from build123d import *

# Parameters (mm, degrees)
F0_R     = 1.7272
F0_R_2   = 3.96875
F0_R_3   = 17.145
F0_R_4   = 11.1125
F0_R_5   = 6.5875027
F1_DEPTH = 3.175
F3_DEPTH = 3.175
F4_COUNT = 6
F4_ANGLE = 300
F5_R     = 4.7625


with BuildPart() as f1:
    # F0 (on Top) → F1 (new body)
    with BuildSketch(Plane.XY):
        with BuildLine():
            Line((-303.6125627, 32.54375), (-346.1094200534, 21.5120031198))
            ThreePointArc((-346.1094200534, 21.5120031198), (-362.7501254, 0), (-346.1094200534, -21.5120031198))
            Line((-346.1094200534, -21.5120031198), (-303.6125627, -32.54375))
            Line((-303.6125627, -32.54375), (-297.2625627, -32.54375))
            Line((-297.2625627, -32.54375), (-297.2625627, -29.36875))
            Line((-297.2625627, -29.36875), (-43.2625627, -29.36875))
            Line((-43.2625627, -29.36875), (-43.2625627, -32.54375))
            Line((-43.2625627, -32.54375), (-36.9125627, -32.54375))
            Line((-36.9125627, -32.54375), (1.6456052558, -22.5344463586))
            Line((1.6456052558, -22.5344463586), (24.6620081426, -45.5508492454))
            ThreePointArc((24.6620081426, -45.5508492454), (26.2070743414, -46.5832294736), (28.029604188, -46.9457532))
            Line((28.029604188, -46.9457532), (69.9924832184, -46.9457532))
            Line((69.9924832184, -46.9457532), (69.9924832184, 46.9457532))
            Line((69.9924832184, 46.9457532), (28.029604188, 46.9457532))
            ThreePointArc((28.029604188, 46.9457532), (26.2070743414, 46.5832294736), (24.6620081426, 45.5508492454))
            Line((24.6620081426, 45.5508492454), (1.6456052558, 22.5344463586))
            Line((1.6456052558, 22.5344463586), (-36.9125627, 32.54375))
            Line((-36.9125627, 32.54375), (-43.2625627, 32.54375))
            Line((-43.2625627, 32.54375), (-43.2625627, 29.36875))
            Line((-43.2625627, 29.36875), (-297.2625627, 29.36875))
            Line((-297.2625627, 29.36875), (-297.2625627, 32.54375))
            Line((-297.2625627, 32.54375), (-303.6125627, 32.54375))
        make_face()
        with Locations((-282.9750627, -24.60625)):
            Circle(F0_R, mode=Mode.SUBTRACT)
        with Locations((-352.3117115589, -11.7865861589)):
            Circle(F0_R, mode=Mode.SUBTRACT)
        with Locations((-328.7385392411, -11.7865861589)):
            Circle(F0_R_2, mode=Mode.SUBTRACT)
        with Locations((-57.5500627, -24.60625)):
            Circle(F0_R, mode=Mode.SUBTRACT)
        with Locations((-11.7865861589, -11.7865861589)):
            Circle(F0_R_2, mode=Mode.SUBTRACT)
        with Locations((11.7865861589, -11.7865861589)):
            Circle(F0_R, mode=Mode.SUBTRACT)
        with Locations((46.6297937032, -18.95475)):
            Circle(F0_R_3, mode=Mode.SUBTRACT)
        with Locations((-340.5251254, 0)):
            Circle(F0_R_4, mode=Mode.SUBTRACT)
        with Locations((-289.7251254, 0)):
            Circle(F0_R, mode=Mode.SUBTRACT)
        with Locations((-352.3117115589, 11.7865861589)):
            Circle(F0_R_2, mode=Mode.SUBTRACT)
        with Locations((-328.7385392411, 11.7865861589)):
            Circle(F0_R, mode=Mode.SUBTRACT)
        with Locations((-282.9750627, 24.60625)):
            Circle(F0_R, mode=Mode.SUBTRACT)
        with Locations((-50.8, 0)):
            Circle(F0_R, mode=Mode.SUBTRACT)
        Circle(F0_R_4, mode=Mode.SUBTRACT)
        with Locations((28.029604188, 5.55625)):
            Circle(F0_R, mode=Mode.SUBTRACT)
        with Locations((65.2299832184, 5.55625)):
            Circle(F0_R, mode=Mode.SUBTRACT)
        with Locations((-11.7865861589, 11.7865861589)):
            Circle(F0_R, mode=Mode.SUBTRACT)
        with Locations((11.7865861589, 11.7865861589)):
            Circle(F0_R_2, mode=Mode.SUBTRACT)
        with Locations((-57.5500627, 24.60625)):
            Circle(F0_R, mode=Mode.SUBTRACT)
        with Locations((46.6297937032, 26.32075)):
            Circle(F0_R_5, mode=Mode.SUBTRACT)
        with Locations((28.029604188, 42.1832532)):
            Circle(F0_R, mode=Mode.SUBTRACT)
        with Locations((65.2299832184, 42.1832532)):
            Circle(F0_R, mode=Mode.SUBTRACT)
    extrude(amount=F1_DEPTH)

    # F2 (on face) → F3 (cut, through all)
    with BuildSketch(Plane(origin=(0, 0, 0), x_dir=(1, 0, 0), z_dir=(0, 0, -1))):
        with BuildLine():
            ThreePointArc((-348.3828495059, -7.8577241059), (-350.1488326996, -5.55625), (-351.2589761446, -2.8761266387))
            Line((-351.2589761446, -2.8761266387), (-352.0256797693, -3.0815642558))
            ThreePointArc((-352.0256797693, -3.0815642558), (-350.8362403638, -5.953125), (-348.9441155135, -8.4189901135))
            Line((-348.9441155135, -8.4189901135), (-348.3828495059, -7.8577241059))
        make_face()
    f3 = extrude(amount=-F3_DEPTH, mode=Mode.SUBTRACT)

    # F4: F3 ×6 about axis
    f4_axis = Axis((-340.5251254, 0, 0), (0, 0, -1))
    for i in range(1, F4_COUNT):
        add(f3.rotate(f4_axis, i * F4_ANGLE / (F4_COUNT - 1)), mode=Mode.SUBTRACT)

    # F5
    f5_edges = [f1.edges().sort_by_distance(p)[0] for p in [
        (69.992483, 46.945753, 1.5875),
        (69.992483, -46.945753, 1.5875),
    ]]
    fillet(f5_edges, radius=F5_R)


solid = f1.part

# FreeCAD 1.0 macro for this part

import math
import FreeCAD as App
import Part
import Sketcher
Q = App.Units.Quantity


def edges_at(feature, points):
    """Names of the edges that pass closest to the given points."""
    edges = feature.Shape.Edges
    near = lambda p: min(range(len(edges)), key=lambda i: edges[i].distToShape(Part.Vertex(*p))[0])
    return sorted({f"Edge{near(p) + 1}" for p in points})

doc = App.newDocument("Part")
body = doc.addObject("PartDesign::Body", "Body")

# Sketch on XY plane
sketch1 = doc.addObject("Sketcher::SketchObject", "Sketch")
body.addObject(sketch1)
sketch1.AttachmentSupport = (doc.XY_Plane, [""])
sketch1.MapMode = "FlatFace"
sketch1.addGeometry([
    Part.LineSegment(App.Vector(-303.6, 32.5, 0), App.Vector(-346.1, 21.5, 0)),  # 0
    Part.ArcOfCircle(Part.Circle(App.Vector(-340.5, 0, 0), App.Vector(0, 0, 1), 22.2), math.radians(105), math.radians(255)),  # 1
    Part.LineSegment(App.Vector(-346.1, -21.5, 0), App.Vector(-303.6, -32.5, 0)),  # 2
    Part.LineSegment(App.Vector(-303.6, -32.5, 0), App.Vector(-297.3, -32.5, 0)),  # 3
    Part.LineSegment(App.Vector(-297.3, -32.5, 0), App.Vector(-297.3, -29.4, 0)),  # 4
    Part.LineSegment(App.Vector(-297.3, -29.4, 0), App.Vector(-43.3, -29.4, 0)),  # 5
    Part.LineSegment(App.Vector(-43.3, -29.4, 0), App.Vector(-43.3, -32.5, 0)),  # 6
    Part.LineSegment(App.Vector(-43.3, -32.5, 0), App.Vector(-36.9, -32.5, 0)),  # 7
    Part.LineSegment(App.Vector(-36.9, -32.5, 0), App.Vector(1.6, -22.5, 0)),  # 8
    Part.LineSegment(App.Vector(1.6, -22.5, 0), App.Vector(24.7, -45.6, 0)),  # 9
    Part.ArcOfCircle(Part.Circle(App.Vector(28, -42.2, 0), App.Vector(0, 0, 1), 4.8), math.radians(-135), math.radians(-90)),  # 10
    Part.LineSegment(App.Vector(28, -46.9, 0), App.Vector(70, -46.9, 0)),  # 11
    Part.LineSegment(App.Vector(70, -46.9, 0), App.Vector(70, 46.9, 0)),  # 12
    Part.LineSegment(App.Vector(70, 46.9, 0), App.Vector(28, 46.9, 0)),  # 13
    Part.ArcOfCircle(Part.Circle(App.Vector(28, 42.2, 0), App.Vector(0, 0, 1), 4.8), math.radians(90), math.radians(135)),  # 14
    Part.LineSegment(App.Vector(24.7, 45.6, 0), App.Vector(1.6, 22.5, 0)),  # 15
    Part.LineSegment(App.Vector(1.6, 22.5, 0), App.Vector(-36.9, 32.5, 0)),  # 16
    Part.LineSegment(App.Vector(-36.9, 32.5, 0), App.Vector(-43.3, 32.5, 0)),  # 17
    Part.LineSegment(App.Vector(-43.3, 32.5, 0), App.Vector(-43.3, 29.4, 0)),  # 18
    Part.LineSegment(App.Vector(-43.3, 29.4, 0), App.Vector(-297.3, 29.4, 0)),  # 19
    Part.LineSegment(App.Vector(-297.3, 29.4, 0), App.Vector(-297.3, 32.5, 0)),  # 20
    Part.LineSegment(App.Vector(-297.3, 32.5, 0), App.Vector(-303.6, 32.5, 0)),  # 21
    Part.Circle(App.Vector(-283, -24.6, 0), App.Vector(0, 0, 1), 1.7),  # 22
    Part.Circle(App.Vector(-352.3, -11.8, 0), App.Vector(0, 0, 1), 1.7),  # 23
    Part.Circle(App.Vector(-328.7, -11.8, 0), App.Vector(0, 0, 1), 4),  # 24
    Part.Circle(App.Vector(-340.5, 0, 0), App.Vector(0, 0, 1), 11.1),  # 25
    Part.Circle(App.Vector(-289.7, 0, 0), App.Vector(0, 0, 1), 1.7),  # 26
    Part.Circle(App.Vector(-57.6, -24.6, 0), App.Vector(0, 0, 1), 1.7),  # 27
    Part.Circle(App.Vector(46.6, -19, 0), App.Vector(0, 0, 1), 17.1),  # 28
    Part.Circle(App.Vector(-50.8, 0, 0), App.Vector(0, 0, 1), 1.7),  # 29
    Part.Circle(App.Vector(-11.8, -11.8, 0), App.Vector(0, 0, 1), 4),  # 30
    Part.Circle(App.Vector(11.8, -11.8, 0), App.Vector(0, 0, 1), 1.7),  # 31
    Part.Circle(App.Vector(0, 0, 0), App.Vector(0, 0, 1), 11.1),  # 32
    Part.Circle(App.Vector(-352.3, 11.8, 0), App.Vector(0, 0, 1), 4),  # 33
    Part.Circle(App.Vector(-328.7, 11.8, 0), App.Vector(0, 0, 1), 1.7),  # 34
    Part.Circle(App.Vector(-283, 24.6, 0), App.Vector(0, 0, 1), 1.7),  # 35
    Part.Circle(App.Vector(-11.8, 11.8, 0), App.Vector(0, 0, 1), 1.7),  # 36
    Part.Circle(App.Vector(11.8, 11.8, 0), App.Vector(0, 0, 1), 4),  # 37
    Part.Circle(App.Vector(28, 5.6, 0), App.Vector(0, 0, 1), 1.7),  # 38
    Part.Circle(App.Vector(65.2, 5.6, 0), App.Vector(0, 0, 1), 1.7),  # 39
    Part.Circle(App.Vector(-57.6, 24.6, 0), App.Vector(0, 0, 1), 1.7),  # 40
    Part.Circle(App.Vector(46.6, 26.3, 0), App.Vector(0, 0, 1), 6.6),  # 41
    Part.Circle(App.Vector(28, 42.2, 0), App.Vector(0, 0, 1), 1.7),  # 42
    Part.Circle(App.Vector(65.2, 42.2, 0), App.Vector(0, 0, 1), 1.7),  # 43
], False)
sketch1.addConstraint([
    Sketcher.Constraint("Tangent", 0, 2, 1, 1),
    Sketcher.Constraint("Tangent", 1, 2, 2, 1),
    Sketcher.Constraint("Coincident", 2, 2, 3, 1),
    Sketcher.Constraint("Coincident", 3, 2, 4, 1),
    Sketcher.Constraint("Coincident", 4, 2, 5, 1),
    Sketcher.Constraint("Coincident", 5, 2, 6, 1),
    Sketcher.Constraint("Coincident", 6, 2, 7, 1),
    Sketcher.Constraint("Coincident", 7, 2, 8, 1),
    Sketcher.Constraint("Coincident", 8, 2, 9, 1),
    Sketcher.Constraint("Tangent", 9, 2, 10, 1),
    Sketcher.Constraint("Tangent", 10, 2, 11, 1),
    Sketcher.Constraint("Coincident", 11, 2, 12, 1),
    Sketcher.Constraint("Coincident", 12, 2, 13, 1),
    Sketcher.Constraint("Tangent", 13, 2, 14, 1),
    Sketcher.Constraint("Tangent", 14, 2, 15, 1),
    Sketcher.Constraint("Coincident", 15, 2, 16, 1),
    Sketcher.Constraint("Coincident", 16, 2, 17, 1),
    Sketcher.Constraint("Coincident", 17, 2, 18, 1),
    Sketcher.Constraint("Coincident", 18, 2, 19, 1),
    Sketcher.Constraint("Coincident", 19, 2, 20, 1),
    Sketcher.Constraint("Coincident", 20, 2, 21, 1),
    Sketcher.Constraint("Coincident", 21, 2, 0, 1),
    Sketcher.Constraint("Horizontal", 3),
    Sketcher.Constraint("Vertical", 4),
    Sketcher.Constraint("Horizontal", 5),
    Sketcher.Constraint("Vertical", 6),
    Sketcher.Constraint("Horizontal", 7),
    Sketcher.Constraint("Horizontal", 11),
    Sketcher.Constraint("Vertical", 12),
    Sketcher.Constraint("Horizontal", 13),
    Sketcher.Constraint("Horizontal", 17),
    Sketcher.Constraint("Vertical", 18),
    Sketcher.Constraint("Horizontal", 19),
    Sketcher.Constraint("Vertical", 20),
    Sketcher.Constraint("Horizontal", 21),
    Sketcher.Constraint("Coincident", 32, 3, -1, 1),
    Sketcher.Constraint("Coincident", 25, 3, 1, 3),
    Sketcher.Constraint("Coincident", 42, 3, 14, 3),
    Sketcher.Constraint("Equal", 10, 14),
    Sketcher.Constraint("Equal", 22, 23),
    Sketcher.Constraint("Equal", 23, 26),
    Sketcher.Constraint("Equal", 26, 27),
    Sketcher.Constraint("Equal", 27, 29),
    Sketcher.Constraint("Equal", 24, 30),
    Sketcher.Constraint("Equal", 29, 31),
    Sketcher.Constraint("Equal", 25, 32),
    Sketcher.Constraint("Equal", 30, 33),
    Sketcher.Constraint("Equal", 31, 34),
    Sketcher.Constraint("Equal", 34, 35),
    Sketcher.Constraint("Equal", 35, 36),
    Sketcher.Constraint("Equal", 33, 37),
    Sketcher.Constraint("Equal", 36, 38),
    Sketcher.Constraint("Equal", 38, 39),
    Sketcher.Constraint("Equal", 39, 40),
    Sketcher.Constraint("Equal", 40, 42),
    Sketcher.Constraint("Equal", 42, 43),
    Sketcher.Constraint("Symmetric", 31, 3, 36, 3, -1, 1),
    Sketcher.Constraint("Symmetric", 30, 3, 37, 3, -1, 1),
    Sketcher.Constraint("Symmetric", 30, 3, 31, 3, -2),
    Sketcher.Constraint("Symmetric", 10, 3, 14, 3, -1),
    Sketcher.Constraint("Symmetric", 23, 3, 33, 3, -1),
    Sketcher.Constraint("Symmetric", 24, 3, 34, 3, -1),
    Sketcher.Constraint("Symmetric", 22, 3, 35, 3, -1),
    Sketcher.Constraint("Symmetric", 27, 3, 40, 3, -1),
    Sketcher.Constraint("Symmetric", 0, 2, 1, 2, -1),
    Sketcher.Constraint("Symmetric", 8, 2, 15, 2, -1),
    Sketcher.Constraint("Symmetric", 7, 2, 16, 2, -1),
    Sketcher.Constraint("Symmetric", 5, 2, 18, 2, -1),
    Sketcher.Constraint("Symmetric", 3, 2, 20, 2, -1),
    Sketcher.Constraint("PointOnObject", 26, 3, -1),
    Sketcher.Constraint("PointOnObject", 29, 3, -1),
    Sketcher.Constraint("Parallel", 0, 8),
    Sketcher.Constraint("Perpendicular", 9, 15),
    Sketcher.Constraint("Horizontal", 23, 3, 24, 3),
    Sketcher.Constraint("Horizontal", 22, 3, 27, 3),
    Sketcher.Constraint("Horizontal", 24, 3, 30, 3),
    Sketcher.Constraint("Horizontal", 38, 3, 39, 3),
    Sketcher.Constraint("Horizontal", 42, 3, 43, 3),
    Sketcher.Constraint("Horizontal", 3, 2, 6, 2),
    Sketcher.Constraint("Vertical", 14, 3, 38, 3),
    Sketcher.Constraint("Vertical", 28, 3, 41, 3),
    Sketcher.Constraint("Vertical", 39, 3, 43, 3),
    Sketcher.Constraint("Equal", 3, 7),
    Sketcher.Constraint("Diameter", 28, Q("1.35 in")),
    Sketcher.Constraint("DistanceX", 5, 1, 5, 2, Q("10 in")),
    Sketcher.Constraint("Diameter", 22, Q("0.136 in")),
    Sketcher.Constraint("Diameter", 24, Q("0.3125 in")),
    Sketcher.Constraint("Diameter", 25, Q("0.875 in")),
    Sketcher.Constraint("DistanceX", 29, 3, -1, 1, Q("2 in")),
    Sketcher.Constraint("Radius", 1, Q("0.875 in")),
    Sketcher.Constraint("Radius", 10, Q("0.1875 in")),
    Sketcher.Constraint("DistanceX", 1, 3, 26, 3, Q("2 in")),
    Sketcher.Constraint("DistanceX", 3, 1, 3, 2, Q("0.25 in")),
    Sketcher.Constraint("DistanceY", 4, 1, 4, 2, Q("0.125 in")),
    Sketcher.Constraint("DistanceY", 22, 3, -1, 1, Q("0.96875 in")),
    Sketcher.Constraint("DistanceY", -1, 1, 38, 3, Q("0.21875 in")),
    Sketcher.Constraint("DistanceY", 2, 2, -1, 1, Q("1.28125 in")),
    Sketcher.Constraint("DistanceX", 22, 3, 27, 3, Q("8.875 in")),
    Sketcher.Constraint("DistanceY", 28, 3, 38, 3, Q("0.965 in")),
    Sketcher.Constraint("DistanceX", 2, 2, 22, 3, Q("0.8125 in")),
    Sketcher.Constraint("DistanceX", 39, 3, 11, 2, Q("0.1875 in")),
    Sketcher.Constraint("Diameter", 41, 13.175005),
    Sketcher.Constraint("DistanceY", 38, 3, 41, 3, Q("0.8175 in")),
    Sketcher.Constraint("DistanceX", 11, 1, 11, 2, 41.962879),
    Sketcher.Constraint("DistanceX", 8, 2, 10, 3, 26.383999),
    Sketcher.Constraint("DistanceY", 9, 2, 28, 3, 26.596099),
    Sketcher.Constraint("Distance", 0, 43.905379),
    Sketcher.Constraint("DistanceX", 23, 3, -1, 1, 352.311712),
    Sketcher.Constraint("DistanceX", 24, 3, -1, 1, 328.738539),
    Sketcher.Constraint("DistanceX", 0, 2, -1, 1, 346.10942),
    Sketcher.Constraint("DistanceY", 23, 3, 14, 3, 53.969839),
    Sketcher.Constraint("DistanceX", 10, 3, 28, 3, 18.60019),
    Sketcher.Constraint("DistanceX", 30, 3, 10, 3, 39.81619),
])
pad1 = doc.addObject("PartDesign::Pad", "Pad")
body.addObject(pad1)
pad1.Profile = sketch1
pad1.Length = Q("0.125 in")

# Sketch on XY plane
sketch2 = doc.addObject("Sketcher::SketchObject", "Sketch001")
body.addObject(sketch2)
sketch2.AttachmentSupport = (doc.XY_Plane, [""])
sketch2.MapMode = "FlatFace"
sketch2.addGeometry([
    Part.ArcOfCircle(Part.Circle(App.Vector(-340.5, 0, 0), App.Vector(0, 0, 1), 11.1), math.radians(135), math.radians(165)),
    Part.LineSegment(App.Vector(-351.3, 2.9, 0), App.Vector(-352, 3.1, 0)),
    Part.ArcOfCircle(Part.Circle(App.Vector(-340.5, 0, 0), App.Vector(0, 0, 1), 11.9), math.radians(135), math.radians(165)),
    Part.LineSegment(App.Vector(-348.9, 8.4, 0), App.Vector(-348.4, 7.9, 0)),
], False)
sketch2.addConstraint([
    Sketcher.Constraint("Coincident", 0, 2, 1, 1),
    Sketcher.Constraint("Coincident", 1, 2, 2, 2),
    Sketcher.Constraint("Coincident", 2, 1, 3, 1),
    Sketcher.Constraint("Coincident", 3, 2, 0, 1),
    Sketcher.Constraint("Coincident", 2, 3, 0, 3),
    Sketcher.Constraint("PointOnObject", 0, 3, -1),
    Sketcher.Constraint("Angle", 1, Q("165 deg")),
    Sketcher.Constraint("Angle", 3, Q("-45 deg")),
    Sketcher.Constraint("Radius", 0, Q("0.4375 in")),
    Sketcher.Constraint("Radius", 2, Q("0.46875 in")),
    Sketcher.Constraint("DistanceX", 1, 2, -1, 1, 352.02568),
    Sketcher.Constraint("DistanceY", -1, 1, 2, 1, 8.41899),
    Sketcher.Constraint("DistanceX", 3, 2, -1, 1, 348.38285),
])
pocket1 = doc.addObject("PartDesign::Pocket", "Pocket")
body.addObject(pocket1)
pocket1.Profile = sketch2
pocket1.Type = "ThroughAll"
pocket1.Reversed = True
doc.recompute()

datumline = doc.addObject("PartDesign::Line", "DatumLine")
body.addObject(datumline)
datumline.Placement = App.Placement(App.Vector(-340.525125, 0, 0), App.Rotation(App.Vector(0, 0, 1), App.Vector(0, 0, -1)))
polarpattern = doc.addObject("PartDesign::PolarPattern", "PolarPattern")
body.addObject(polarpattern)
polarpattern.Originals = [pocket1]
polarpattern.Axis = (datumline, [""])
polarpattern.Angle = 360
polarpattern.Occurrences = 6
body.Tip = polarpattern
doc.recompute()

fillet = doc.addObject("PartDesign::Fillet", "Fillet")
body.addObject(fillet)
fillet.Base = (polarpattern, edges_at(polarpattern, [(69.992, 46.946, 1.587), (69.992, -46.946, 1.587)]))
fillet.Radius = Q("0.1875 in")

doc.recompute()
